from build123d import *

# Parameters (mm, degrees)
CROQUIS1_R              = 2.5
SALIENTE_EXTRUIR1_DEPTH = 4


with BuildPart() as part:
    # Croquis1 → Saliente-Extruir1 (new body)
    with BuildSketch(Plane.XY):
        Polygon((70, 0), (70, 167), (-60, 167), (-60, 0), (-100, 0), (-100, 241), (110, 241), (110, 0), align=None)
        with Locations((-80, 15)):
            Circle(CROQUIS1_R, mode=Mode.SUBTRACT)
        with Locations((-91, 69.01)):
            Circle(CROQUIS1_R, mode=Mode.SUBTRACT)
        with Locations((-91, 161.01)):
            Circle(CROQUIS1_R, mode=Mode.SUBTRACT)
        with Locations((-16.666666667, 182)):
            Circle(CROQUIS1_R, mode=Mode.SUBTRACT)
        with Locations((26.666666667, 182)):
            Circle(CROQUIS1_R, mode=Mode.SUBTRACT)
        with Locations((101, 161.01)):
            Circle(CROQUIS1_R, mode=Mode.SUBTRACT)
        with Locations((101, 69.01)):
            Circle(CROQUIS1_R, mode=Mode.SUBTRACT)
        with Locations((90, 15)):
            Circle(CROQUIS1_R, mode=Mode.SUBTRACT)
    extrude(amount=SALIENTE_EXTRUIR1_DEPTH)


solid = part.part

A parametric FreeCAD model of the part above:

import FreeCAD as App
import Part
import Sketcher

doc = App.newDocument("Part")
params = doc.addObject("Spreadsheet::Sheet", "Params")
for row, (alias, value) in enumerate([
    ("sketch1_diameter", "5 mm"),
    ("sketch1_width", "40 mm"),
    ("sketch1_width2", "210 mm"),
    ("sketch1_height", "167 mm"),
    ("sketch1_height2", "241 mm"),
    ("pad1_length", "4 mm"),
], start=1):
    params.set(f"A{row}", alias)
    params.set(f"B{row}", "=" + value)
    params.setAlias(f"B{row}", alias)

body = doc.addObject("PartDesign::Body", "Body")

# Sketch on XY plane
sketch1 = body.newObject("Sketcher::SketchObject", "Sketch")
sketch1.AttachmentSupport = (doc.getObject("XY_Plane"), [""])
sketch1.MapMode = "FlatFace"
sketch1.addGeometry([
    Part.LineSegment(App.Vector(70, 167, 0), App.Vector(70, 0, 0)),  # 0
    Part.LineSegment(App.Vector(70, 0, 0), App.Vector(110, 0, 0)),  # 1
    Part.LineSegment(App.Vector(110, 0, 0), App.Vector(110, 241, 0)),  # 2
    Part.LineSegment(App.Vector(110, 241, 0), App.Vector(-100, 241, 0)),  # 3
    Part.LineSegment(App.Vector(-100, 241, 0), App.Vector(-100, 0, 0)),  # 4
    Part.LineSegment(App.Vector(-100, 0, 0), App.Vector(-60, 0, 0)),  # 5
    Part.LineSegment(App.Vector(-60, 0, 0), App.Vector(-60, 167, 0)),  # 6
    Part.LineSegment(App.Vector(-60, 167, 0), App.Vector(70, 167, 0)),  # 7
    Part.Circle(App.Vector(90, 15, 0), App.Vector(0, 0, 1), 2.5),  # 8
    Part.Circle(App.Vector(101, 69, 0), App.Vector(0, 0, 1), 2.5),  # 9
    Part.Circle(App.Vector(-80, 15, 0), App.Vector(0, 0, 1), 2.5),  # 10
    Part.Circle(App.Vector(-91, 69, 0), App.Vector(0, 0, 1), 2.5),  # 11
    Part.Circle(App.Vector(101, 161, 0), App.Vector(0, 0, 1), 2.5),  # 12
    Part.Circle(App.Vector(26.7, 182, 0), App.Vector(0, 0, 1), 2.5),  # 13
    Part.Circle(App.Vector(-16.7, 182, 0), App.Vector(0, 0, 1), 2.5),  # 14
    Part.Circle(App.Vector(-91, 161, 0), App.Vector(0, 0, 1), 2.5),  # 15
], False)
sketch1.addConstraint([
    Sketcher.Constraint("Coincident", 0, 2, 1, 1),
    Sketcher.Constraint("Coincident", 1, 2, 2, 1),
    Sketcher.Constraint("Coincident", 2, 2, 3, 1),
    Sketcher.Constraint("Coincident", 3, 2, 4, 1),
    Sketcher.Constraint("Coincident", 4, 2, 5, 1),
    Sketcher.Constraint("Coincident", 5, 2, 6, 1),
    Sketcher.Constraint("Coincident", 6, 2, 7, 1),
    Sketcher.Constraint("Coincident", 7, 2, 0, 1),
    Sketcher.Constraint("Vertical", 0),
    Sketcher.Constraint("Horizontal", 1),
    Sketcher.Constraint("Vertical", 2),
    Sketcher.Constraint("Horizontal", 3),
    Sketcher.Constraint("Vertical", 4),
    Sketcher.Constraint("Horizontal", 5),
    Sketcher.Constraint("Vertical", 6),
    Sketcher.Constraint("Horizontal", 7),
    Sketcher.Constraint("Equal", 8, 9),
    Sketcher.Constraint("Equal", 9, 10),
    Sketcher.Constraint("Equal", 10, 11),
    Sketcher.Constraint("Equal", 11, 12),
    Sketcher.Constraint("Equal", 12, 13),
    Sketcher.Constraint("Equal", 13, 14),
    Sketcher.Constraint("Equal", 14, 15),
    Sketcher.Constraint("PointOnObject", 0, 2, -1),
    Sketcher.Constraint("PointOnObject", 4, 2, -1),
    Sketcher.Constraint("Horizontal", 8, 3, 10, 3),
    Sketcher.Constraint("Horizontal", 9, 3, 11, 3),
    Sketcher.Constraint("Horizontal", 13, 3, 14, 3),
    Sketcher.Constraint("Horizontal", 12, 3, 15, 3),
    Sketcher.Constraint("Vertical", 9, 3, 12, 3),
    Sketcher.Constraint("Vertical", 11, 3, 15, 3),
    Sketcher.Constraint("Equal", 1, 5),
    Sketcher.Constraint("Diameter", 8, 5.0),
    Sketcher.Constraint("DistanceX", 1, 1, 1, 2, 40.0),
    Sketcher.Constraint("DistanceX", 3, 2, 3, 1, 210.0),
    Sketcher.Constraint("DistanceY", 0, 2, 0, 1, 167.0),
    Sketcher.Constraint("DistanceY", 2, 1, 2, 2, 241.0),
    Sketcher.Constraint("DistanceX", -1, 1, 8, 3, 90.0),
    Sketcher.Constraint("DistanceY", -1, 1, 8, 3, 15.0),
    Sketcher.Constraint("DistanceX", -1, 1, 9, 3, 101.0),
    Sketcher.Constraint("DistanceX", 10, 3, -1, 1, 80.0),
    Sketcher.Constraint("DistanceX", 11, 3, -1, 1, 91.0),
    Sketcher.Constraint("DistanceY", -1, 1, 13, 3, 182.0),
    Sketcher.Constraint("DistanceX", -1, 1, 0, 2, 70.0),
    Sketcher.Constraint("DistanceY", 9, 3, 12, 3, 92.0),
    Sketcher.Constraint("DistanceY", -1, 1, 9, 3, 69.01),
    Sketcher.Constraint("DistanceX", -1, 1, 13, 3, 26.666667),
    Sketcher.Constraint("DistanceX", 14, 3, -1, 1, 16.666667),
])
sketch1.setExpression("Constraints[32]", "Params.sketch1_diameter")
sketch1.setExpression("Constraints[33]", "Params.sketch1_width")
sketch1.setExpression("Constraints[34]", "Params.sketch1_width2")
sketch1.setExpression("Constraints[35]", "Params.sketch1_height")
sketch1.setExpression("Constraints[36]", "Params.sketch1_height2")
pad1 = body.newObject("PartDesign::Pad", "Pad")
pad1.Profile = sketch1
pad1.setExpression("Length", "Params.pad1_length")

doc.recompute()
